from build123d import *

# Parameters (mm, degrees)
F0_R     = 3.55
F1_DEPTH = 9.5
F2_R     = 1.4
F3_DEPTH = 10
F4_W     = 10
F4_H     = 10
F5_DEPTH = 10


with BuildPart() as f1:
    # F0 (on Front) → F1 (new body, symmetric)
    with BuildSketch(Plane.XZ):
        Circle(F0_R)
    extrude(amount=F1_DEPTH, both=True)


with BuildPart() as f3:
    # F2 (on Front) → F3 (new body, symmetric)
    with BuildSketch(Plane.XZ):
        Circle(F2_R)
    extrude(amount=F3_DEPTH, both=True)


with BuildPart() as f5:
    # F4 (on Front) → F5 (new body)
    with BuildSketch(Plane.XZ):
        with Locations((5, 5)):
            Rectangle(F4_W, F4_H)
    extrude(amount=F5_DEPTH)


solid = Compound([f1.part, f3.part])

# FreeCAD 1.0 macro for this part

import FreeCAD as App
import Part
import Sketcher

V = App.Vector


def add_polygon(sketch, points):
    """Adds a closed chain of lines whose ends are joined by coincident constraints."""
    first, n = sketch.GeometryCount, len(points)
    for a, b in zip(points, points[1:] + points[:1]):
        sketch.addGeometry(Part.LineSegment(App.Vector(*a, 0), App.Vector(*b, 0)), False)
    for i in range(n):
        sketch.addConstraint(Sketcher.Constraint("Coincident", first + i, 2, first + (i + 1) % n, 1))

doc = App.newDocument("Part")
body = doc.addObject("PartDesign::Body", "Body")

# Sketch on XZ plane
sketch1 = body.newObject("Sketcher::SketchObject", "Sketch")
sketch1.AttachmentSupport = (doc.getObject("XZ_Plane"), [""])
sketch1.MapMode = "FlatFace"
sketch1.addGeometry(Part.Circle(V(0, 0, 0), V(0, 0, 1), 3.5), False)
sketch1.addConstraint([
    Sketcher.Constraint("Coincident", 0, 3, -1, 1),
    Sketcher.Constraint("Diameter", 0, 7.1),
])
pad1 = body.newObject("PartDesign::Pad", "Pad")
pad1.Profile = sketch1
pad1.Length = 19
pad1.Midplane = True
body2 = doc.addObject("PartDesign::Body", "Body001")

# Sketch on XZ plane
sketch2 = body2.newObject("Sketcher::SketchObject", "Sketch001")
sketch2.AttachmentSupport = (doc.getObject("XZ_Plane001"), [""])
sketch2.MapMode = "FlatFace"
sketch2.addGeometry(Part.Circle(V(0, 0, 0), V(0, 0, 1), 1.4), False)
sketch2.addConstraint([
    Sketcher.Constraint("Coincident", 0, 3, -1, 1),
    Sketcher.Constraint("Diameter", 0, 2.8),
])
pad2 = body2.newObject("PartDesign::Pad", "Pad001")
pad2.Profile = sketch2
pad2.Length = 20
pad2.Midplane = True
body3 = doc.addObject("PartDesign::Body", "Body002")

# Sketch on XZ plane
sketch3 = body3.newObject("Sketcher::SketchObject", "Sketch002")
sketch3.AttachmentSupport = (doc.getObject("XZ_Plane002"), [""])
sketch3.MapMode = "FlatFace"
add_polygon(sketch3, [(0, 10), (0, 0), (10, 0), (10, 10)])  # lines 0-3
sketch3.addConstraint([
    Sketcher.Constraint("Vertical", 0),
    Sketcher.Constraint("Horizontal", 1),
    Sketcher.Constraint("Vertical", 2),
    Sketcher.Constraint("Horizontal", 3),
    Sketcher.Constraint("Coincident", 0, 2, -1, 1),
    Sketcher.Constraint("Equal", 3, 0),
    Sketcher.Constraint("DistanceX", 1, 1, 1, 2, 10.0),
])
pad3 = body3.newObject("PartDesign::Pad", "Pad002")
pad3.Profile = sketch3
pad3.Length = 10
body3.Visibility = False

doc.recompute()
